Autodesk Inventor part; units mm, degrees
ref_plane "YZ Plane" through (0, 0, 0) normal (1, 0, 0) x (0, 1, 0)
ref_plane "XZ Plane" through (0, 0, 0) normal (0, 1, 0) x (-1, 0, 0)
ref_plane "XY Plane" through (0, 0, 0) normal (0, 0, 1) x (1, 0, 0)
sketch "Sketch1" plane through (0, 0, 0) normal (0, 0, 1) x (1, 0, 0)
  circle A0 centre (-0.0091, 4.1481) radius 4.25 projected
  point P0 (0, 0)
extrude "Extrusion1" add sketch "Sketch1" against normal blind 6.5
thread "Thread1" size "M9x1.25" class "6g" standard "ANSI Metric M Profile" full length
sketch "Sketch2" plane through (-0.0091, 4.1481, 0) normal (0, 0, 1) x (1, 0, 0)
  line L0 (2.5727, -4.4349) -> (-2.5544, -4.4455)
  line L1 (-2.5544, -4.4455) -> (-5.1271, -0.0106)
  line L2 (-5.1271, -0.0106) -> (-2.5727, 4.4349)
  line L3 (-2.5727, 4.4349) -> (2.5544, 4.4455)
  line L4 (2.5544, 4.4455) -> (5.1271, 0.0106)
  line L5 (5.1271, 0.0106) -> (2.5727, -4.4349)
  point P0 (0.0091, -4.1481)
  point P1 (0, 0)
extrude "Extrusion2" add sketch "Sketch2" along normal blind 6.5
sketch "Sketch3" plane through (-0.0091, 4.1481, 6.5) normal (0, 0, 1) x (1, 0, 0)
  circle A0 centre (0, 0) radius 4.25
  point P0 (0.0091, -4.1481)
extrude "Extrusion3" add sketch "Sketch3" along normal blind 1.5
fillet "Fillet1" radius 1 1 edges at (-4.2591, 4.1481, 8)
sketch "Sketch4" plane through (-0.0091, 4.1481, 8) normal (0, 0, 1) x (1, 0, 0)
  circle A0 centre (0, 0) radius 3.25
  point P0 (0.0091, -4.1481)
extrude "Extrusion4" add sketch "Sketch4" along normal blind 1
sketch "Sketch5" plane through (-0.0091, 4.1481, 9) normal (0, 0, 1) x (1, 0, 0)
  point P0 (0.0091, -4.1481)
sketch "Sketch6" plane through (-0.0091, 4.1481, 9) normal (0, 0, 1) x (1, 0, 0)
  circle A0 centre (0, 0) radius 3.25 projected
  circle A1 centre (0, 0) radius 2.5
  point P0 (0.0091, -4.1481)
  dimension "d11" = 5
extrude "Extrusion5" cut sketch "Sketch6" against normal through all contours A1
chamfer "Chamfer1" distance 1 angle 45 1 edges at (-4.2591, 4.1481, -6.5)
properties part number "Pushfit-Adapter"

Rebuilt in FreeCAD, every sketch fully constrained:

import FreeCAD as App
import Part
import Sketcher

V = App.Vector
Q = App.Units.Quantity


def edges_at(feature, points):
    """Names of the edges that pass closest to the given points."""
    edges = feature.Shape.Edges
    near = lambda p: min(range(len(edges)), key=lambda i: edges[i].distToShape(Part.Vertex(*p))[0])
    return sorted({f"Edge{near(p) + 1}" for p in points})

doc = App.newDocument("Part")
body = doc.addObject("PartDesign::Body", "Body")

sketch1 = body.newObject("Sketcher::SketchObject", "Sketch")
sketch1.AttachmentSupport = (doc.getObject("XY_Plane"), [""])
sketch1.MapMode = "FlatFace"
sketch1.addGeometry(Part.Circle(V(-0.0091, 4.1481, 0), V(0, 0, 1), 4.25), False)
sketch1.addConstraint([
    Sketcher.Constraint("Diameter", 0, Q("8.5 mm")),
    Sketcher.Constraint("DistanceX", 0, 3, -1, 1, Q("0.009 mm")),
    Sketcher.Constraint("DistanceY", -1, 1, 0, 3, Q("4.148 mm")),
])
pad1 = body.newObject("PartDesign::Pad", "Pad")
pad1.Profile = sketch1
pad1.Length = 6.5
pad1.Reversed = True

sketch2 = body.newObject("Sketcher::SketchObject", "Sketch001")
sketch2.AttachmentSupport = (doc.getObject("XY_Plane"), [""])
sketch2.MapMode = "FlatFace"
sketch2.addGeometry([
    Part.LineSegment(V(-2.5635, -0.2974, 0), V(2.5636, -0.2868, 0)),
    Part.LineSegment(V(2.5636, -0.2868, 0), V(5.118, 4.1587, 0)),
    Part.LineSegment(V(5.118, 4.1587, 0), V(2.5453, 8.5936, 0)),
    Part.LineSegment(V(2.5453, 8.5936, 0), V(-2.5818, 8.583, 0)),
    Part.LineSegment(V(-2.5818, 8.583, 0), V(-5.1362, 4.1375, 0)),
    Part.LineSegment(V(-5.1362, 4.1375, 0), V(-2.5635, -0.2974, 0)),
], False)
sketch2.addConstraint([
    Sketcher.Constraint("Coincident", 0, 2, 1, 1),
    Sketcher.Constraint("Coincident", 1, 2, 2, 1),
    Sketcher.Constraint("Coincident", 2, 2, 3, 1),
    Sketcher.Constraint("Coincident", 3, 2, 4, 1),
    Sketcher.Constraint("Coincident", 4, 2, 5, 1),
    Sketcher.Constraint("Coincident", 5, 2, 0, 1),
    Sketcher.Constraint("Parallel", 0, 3),
    Sketcher.Constraint("Parallel", 1, 4),
    Sketcher.Constraint("Parallel", 2, 5),
    Sketcher.Constraint("Equal", 0, 1),
    Sketcher.Constraint("Equal", 1, 2),
    Sketcher.Constraint("Equal", 2, 3),
    Sketcher.Constraint("Distance", 0, Q("5.127 mm")),
    Sketcher.Constraint("DistanceX", -1, 1, 1, 2, Q("5.118 mm")),
    Sketcher.Constraint("DistanceY", -1, 1, 3, 2, Q("8.583 mm")),
    Sketcher.Constraint("DistanceY", 1, 2, 2, 2, Q("4.435 mm")),
    Sketcher.Constraint("DistanceY", 4, 2, 2, 2, Q("4.456 mm")),
    Sketcher.Constraint("DistanceX", -1, 1, 0, 2, Q("2.5636 mm")),
])
pad2 = body.newObject("PartDesign::Pad", "Pad001")
pad2.Profile = sketch2
pad2.Length = 6.5

sketch3 = body.newObject("Sketcher::SketchObject", "Sketch002")
sketch3.AttachmentSupport = (doc.getObject("XY_Plane"), [""])
sketch3.MapMode = "FlatFace"
sketch3.AttachmentOffset = App.Placement(V(0, 0, 6.5), App.Rotation())
sketch3.addGeometry(Part.Circle(V(-0.0091, 4.1481, 0), V(0, 0, 1), 4.25), False)
sketch3.addConstraint([
    Sketcher.Constraint("Diameter", 0, Q("8.5 mm")),
    Sketcher.Constraint("DistanceX", 0, 3, -1, 1, Q("0.009 mm")),
    Sketcher.Constraint("DistanceY", -1, 1, 0, 3, Q("4.148 mm")),
])
pad3 = body.newObject("PartDesign::Pad", "Pad002")
pad3.Profile = sketch3
pad3.Length = 1.5
doc.recompute()

fillet = body.newObject("PartDesign::Fillet", "Fillet")
fillet.Base = (pad3, edges_at(pad3, [(-4.259, 4.148, 8)]))
fillet.Radius = 1

sketch4 = body.newObject("Sketcher::SketchObject", "Sketch003")
sketch4.AttachmentSupport = (doc.getObject("XY_Plane"), [""])
sketch4.MapMode = "FlatFace"
sketch4.AttachmentOffset = App.Placement(V(0, 0, 8), App.Rotation())
sketch4.addGeometry(Part.Circle(V(-0.0091, 4.1481, 0), V(0, 0, 1), 3.25), False)
sketch4.addConstraint([
    Sketcher.Constraint("Diameter", 0, Q("6.5 mm")),
    Sketcher.Constraint("DistanceX", 0, 3, -1, 1, Q("0.009 mm")),
    Sketcher.Constraint("DistanceY", -1, 1, 0, 3, Q("4.148 mm")),
])
pad4 = body.newObject("PartDesign::Pad", "Pad003")
pad4.Profile = sketch4
pad4.Length = 1

sketch5 = body.newObject("Sketcher::SketchObject", "Sketch004")
sketch5.AttachmentSupport = (doc.getObject("XY_Plane"), [""])
sketch5.MapMode = "FlatFace"
sketch5.AttachmentOffset = App.Placement(V(0, 0, 9), App.Rotation())
sketch5.addGeometry(Part.Circle(V(-0.0091, 4.1481, 0), V(0, 0, 1), 2.5), False)
sketch5.addConstraint([
    Sketcher.Constraint("Diameter", 0, Q("5 mm")),
    Sketcher.Constraint("DistanceX", 0, 3, -1, 1, Q("0.009 mm")),
    Sketcher.Constraint("DistanceY", -1, 1, 0, 3, Q("4.148 mm")),
])
pocket1 = body.newObject("PartDesign::Pocket", "Pocket")
pocket1.Profile = sketch5
pocket1.Type = "ThroughAll"
doc.recompute()

chamfer = body.newObject("PartDesign::Chamfer", "Chamfer")
chamfer.Base = (pocket1, edges_at(pocket1, [(-4.259, 4.148, -6.5)]))
chamfer.Size = 1

doc.recompute()
